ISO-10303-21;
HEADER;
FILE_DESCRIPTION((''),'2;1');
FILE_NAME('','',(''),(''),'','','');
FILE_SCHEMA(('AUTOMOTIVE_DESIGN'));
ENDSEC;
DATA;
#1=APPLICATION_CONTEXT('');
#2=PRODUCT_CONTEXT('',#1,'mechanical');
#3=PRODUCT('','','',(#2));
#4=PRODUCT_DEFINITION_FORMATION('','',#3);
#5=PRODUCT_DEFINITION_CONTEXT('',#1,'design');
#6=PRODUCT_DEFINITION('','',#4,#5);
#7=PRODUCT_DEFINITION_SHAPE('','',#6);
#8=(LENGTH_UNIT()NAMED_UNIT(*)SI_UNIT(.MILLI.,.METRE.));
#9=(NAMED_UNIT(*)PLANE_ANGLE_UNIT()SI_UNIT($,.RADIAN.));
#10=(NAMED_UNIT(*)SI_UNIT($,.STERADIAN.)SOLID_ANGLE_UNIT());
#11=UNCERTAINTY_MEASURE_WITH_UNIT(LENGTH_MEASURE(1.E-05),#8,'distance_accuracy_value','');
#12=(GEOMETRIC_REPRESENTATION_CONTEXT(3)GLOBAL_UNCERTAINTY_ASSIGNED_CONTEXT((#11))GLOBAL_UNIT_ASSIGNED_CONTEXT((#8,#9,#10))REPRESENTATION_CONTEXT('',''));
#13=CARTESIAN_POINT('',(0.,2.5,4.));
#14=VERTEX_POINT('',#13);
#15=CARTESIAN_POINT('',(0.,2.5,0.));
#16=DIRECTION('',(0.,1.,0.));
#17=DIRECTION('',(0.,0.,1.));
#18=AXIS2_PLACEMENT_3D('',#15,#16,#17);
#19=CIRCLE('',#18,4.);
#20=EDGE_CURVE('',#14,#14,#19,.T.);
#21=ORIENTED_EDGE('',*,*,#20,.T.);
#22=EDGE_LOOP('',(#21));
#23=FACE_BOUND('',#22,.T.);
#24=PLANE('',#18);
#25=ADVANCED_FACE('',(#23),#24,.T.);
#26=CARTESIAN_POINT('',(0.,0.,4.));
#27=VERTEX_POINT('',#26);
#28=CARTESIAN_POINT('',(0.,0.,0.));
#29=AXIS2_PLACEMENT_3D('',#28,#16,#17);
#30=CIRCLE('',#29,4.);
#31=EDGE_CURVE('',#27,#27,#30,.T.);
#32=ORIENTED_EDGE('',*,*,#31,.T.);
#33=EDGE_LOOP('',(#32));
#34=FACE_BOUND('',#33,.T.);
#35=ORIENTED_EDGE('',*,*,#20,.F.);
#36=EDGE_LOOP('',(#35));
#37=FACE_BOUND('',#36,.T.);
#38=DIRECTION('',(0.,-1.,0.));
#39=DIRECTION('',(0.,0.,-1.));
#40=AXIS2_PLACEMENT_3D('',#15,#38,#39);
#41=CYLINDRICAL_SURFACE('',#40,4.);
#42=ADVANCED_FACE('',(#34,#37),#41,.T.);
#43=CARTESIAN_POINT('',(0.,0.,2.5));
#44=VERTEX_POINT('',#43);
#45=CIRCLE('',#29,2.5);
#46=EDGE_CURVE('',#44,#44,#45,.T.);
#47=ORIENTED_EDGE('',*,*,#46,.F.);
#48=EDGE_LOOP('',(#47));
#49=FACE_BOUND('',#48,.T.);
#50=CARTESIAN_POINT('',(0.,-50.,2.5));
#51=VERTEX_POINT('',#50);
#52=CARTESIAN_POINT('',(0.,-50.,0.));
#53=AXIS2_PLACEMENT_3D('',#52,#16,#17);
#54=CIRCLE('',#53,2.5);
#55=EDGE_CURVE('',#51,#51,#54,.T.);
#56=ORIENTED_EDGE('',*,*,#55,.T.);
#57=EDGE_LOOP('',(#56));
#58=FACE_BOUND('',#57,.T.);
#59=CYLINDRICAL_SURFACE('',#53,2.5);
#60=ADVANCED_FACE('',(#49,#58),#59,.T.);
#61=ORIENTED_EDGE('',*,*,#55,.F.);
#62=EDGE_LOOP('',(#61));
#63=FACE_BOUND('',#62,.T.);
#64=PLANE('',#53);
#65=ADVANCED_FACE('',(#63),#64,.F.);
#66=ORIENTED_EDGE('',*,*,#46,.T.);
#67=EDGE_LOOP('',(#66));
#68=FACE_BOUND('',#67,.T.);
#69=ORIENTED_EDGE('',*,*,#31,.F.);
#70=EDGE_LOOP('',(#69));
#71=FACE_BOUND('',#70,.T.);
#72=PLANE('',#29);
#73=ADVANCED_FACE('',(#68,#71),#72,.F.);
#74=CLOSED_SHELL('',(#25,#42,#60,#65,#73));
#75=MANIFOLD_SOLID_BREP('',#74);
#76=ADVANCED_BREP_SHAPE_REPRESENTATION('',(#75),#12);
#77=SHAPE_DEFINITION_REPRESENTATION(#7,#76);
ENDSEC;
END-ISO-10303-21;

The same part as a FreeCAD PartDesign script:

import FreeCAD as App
import Part
import Sketcher

V = App.Vector

doc = App.newDocument("Part")
body = doc.addObject("PartDesign::Body", "Body")

sketch1 = body.newObject("Sketcher::SketchObject", "Sketch")
sketch1.AttachmentSupport = (doc.getObject("XZ_Plane"), [""])
sketch1.MapMode = "FlatFace"
sketch1.addGeometry(Part.Circle(V(0, 0, 0), V(0, 0, 1), 2.5), False)
sketch1.addConstraint(Sketcher.Constraint("Coincident", 0, 3, -1, 1))
sketch1.addConstraint(Sketcher.Constraint("Diameter", 0, 5.0))
pad1 = body.newObject("PartDesign::Pad", "Pad")
pad1.Profile = sketch1
pad1.Length = 50

sketch2 = body.newObject("Sketcher::SketchObject", "Sketch001")
sketch2.AttachmentSupport = (doc.getObject("XZ_Plane"), [""])
sketch2.MapMode = "FlatFace"
sketch2.addGeometry(Part.Circle(V(0, 0, 0), V(0, 0, 1), 4), False)
sketch2.addConstraint(Sketcher.Constraint("Coincident", 0, 3, -1, 1))
sketch2.addConstraint(Sketcher.Constraint("Diameter", 0, 8.0))
pad2 = body.newObject("PartDesign::Pad", "Pad001")
pad2.Profile = sketch2
pad2.Length = 2.5
pad2.Reversed = True

doc.recompute()
